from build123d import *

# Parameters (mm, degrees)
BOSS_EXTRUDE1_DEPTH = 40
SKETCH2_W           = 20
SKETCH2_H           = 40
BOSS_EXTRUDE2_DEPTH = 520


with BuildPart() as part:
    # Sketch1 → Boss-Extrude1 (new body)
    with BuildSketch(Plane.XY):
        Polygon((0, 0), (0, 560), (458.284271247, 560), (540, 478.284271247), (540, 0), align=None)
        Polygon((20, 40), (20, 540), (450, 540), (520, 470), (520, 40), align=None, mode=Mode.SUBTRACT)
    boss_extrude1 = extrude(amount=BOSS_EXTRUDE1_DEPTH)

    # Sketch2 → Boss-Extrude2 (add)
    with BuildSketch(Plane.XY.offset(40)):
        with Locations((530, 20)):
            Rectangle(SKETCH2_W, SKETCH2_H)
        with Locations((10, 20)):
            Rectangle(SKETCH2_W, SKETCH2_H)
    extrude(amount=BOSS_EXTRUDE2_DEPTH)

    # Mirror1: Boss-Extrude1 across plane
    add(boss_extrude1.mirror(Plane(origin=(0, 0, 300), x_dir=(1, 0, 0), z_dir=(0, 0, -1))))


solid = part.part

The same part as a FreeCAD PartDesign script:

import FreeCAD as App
import Part
import Sketcher

V = App.Vector
Q = App.Units.Quantity

doc = App.newDocument("Part")
body = doc.addObject("PartDesign::Body", "Body")

sketch1 = doc.addObject("Sketcher::SketchObject", "Sketch")
body.addObject(sketch1)
sketch1.AttachmentSupport = (doc.XY_Plane, [""])
sketch1.MapMode = "FlatFace"
sketch1.addGeometry([
    Part.LineSegment(V(0, 560, 0), V(0, 0, 0)),
    Part.LineSegment(V(0, 0, 0), V(540, 0, 0)),
    Part.LineSegment(V(540, 0, 0), V(540, 478.284271, 0)),
    Part.LineSegment(V(540, 478.284271, 0), V(458.284271, 560, 0)),
    Part.LineSegment(V(458.284271, 560, 0), V(0, 560, 0)),
    Part.LineSegment(V(20, 40, 0), V(20, 540, 0)),
    Part.LineSegment(V(20, 540, 0), V(450, 540, 0)),
    Part.LineSegment(V(450, 540, 0), V(520, 470, 0)),
    Part.LineSegment(V(520, 470, 0), V(520, 40, 0)),
    Part.LineSegment(V(520, 40, 0), V(20, 40, 0)),
], False)
sketch1.addConstraint([
    Sketcher.Constraint("Coincident", 0, 2, 1, 1),
    Sketcher.Constraint("Coincident", 1, 2, 2, 1),
    Sketcher.Constraint("Coincident", 2, 2, 3, 1),
    Sketcher.Constraint("Coincident", 3, 2, 4, 1),
    Sketcher.Constraint("Coincident", 4, 2, 0, 1),
    Sketcher.Constraint("Coincident", 5, 2, 6, 1),
    Sketcher.Constraint("Coincident", 6, 2, 7, 1),
    Sketcher.Constraint("Coincident", 7, 2, 8, 1),
    Sketcher.Constraint("Coincident", 8, 2, 9, 1),
    Sketcher.Constraint("Coincident", 9, 2, 5, 1),
    Sketcher.Constraint("Vertical", 0),
    Sketcher.Constraint("Horizontal", 1),
    Sketcher.Constraint("Vertical", 2),
    Sketcher.Constraint("Horizontal", 4),
    Sketcher.Constraint("Vertical", 5),
    Sketcher.Constraint("Horizontal", 6),
    Sketcher.Constraint("Vertical", 8),
    Sketcher.Constraint("Horizontal", 9),
    Sketcher.Constraint("Coincident", 0, 2, -1, 1),
    Sketcher.Constraint("Parallel", 3, 7),
    Sketcher.Constraint("Equal", 9, 5),
    Sketcher.Constraint("Equal", 6, 8),
    Sketcher.Constraint("DistanceX", 1, 1, 1, 2, Q("540 mm")),
    Sketcher.Constraint("DistanceX", 6, 1, 6, 2, Q("430 mm")),
    Sketcher.Constraint("DistanceX", 9, 2, 9, 1, Q("500 mm")),
    Sketcher.Constraint("DistanceY", 0, 2, 0, 1, Q("560 mm")),
    Sketcher.Constraint("DistanceX", -1, 1, 5, 2, Q("20 mm")),
    Sketcher.Constraint("DistanceY", -1, 1, 5, 2, Q("540 mm")),
    Sketcher.Constraint("DistanceX", 4, 2, 4, 1, Q("458.284271 mm")),
])
pad1 = doc.addObject("PartDesign::Pad", "Pad")
body.addObject(pad1)
pad1.Profile = sketch1
pad1.Length = 40

sketch2 = doc.addObject("Sketcher::SketchObject", "Sketch001")
body.addObject(sketch2)
sketch2.AttachmentSupport = (doc.XY_Plane, [""])
sketch2.MapMode = "FlatFace"
sketch2.AttachmentOffset = App.Placement(V(0, 0, 40), App.Rotation())
sketch2.addGeometry([
    Part.LineSegment(V(520, 40, 0), V(520, 0, 0)),
    Part.LineSegment(V(520, 0, 0), V(540, 0, 0)),
    Part.LineSegment(V(540, 0, 0), V(540, 40, 0)),
    Part.LineSegment(V(540, 40, 0), V(520, 40, 0)),
    Part.LineSegment(V(0, 40, 0), V(0, 0, 0)),
    Part.LineSegment(V(0, 0, 0), V(20, 0, 0)),
    Part.LineSegment(V(20, 0, 0), V(20, 40, 0)),
    Part.LineSegment(V(20, 40, 0), V(0, 40, 0)),
], False)
sketch2.addConstraint([
    Sketcher.Constraint("Coincident", 0, 2, 1, 1),
    Sketcher.Constraint("Coincident", 1, 2, 2, 1),
    Sketcher.Constraint("Coincident", 2, 2, 3, 1),
    Sketcher.Constraint("Coincident", 3, 2, 0, 1),
    Sketcher.Constraint("Coincident", 4, 2, 5, 1),
    Sketcher.Constraint("Coincident", 5, 2, 6, 1),
    Sketcher.Constraint("Coincident", 6, 2, 7, 1),
    Sketcher.Constraint("Coincident", 7, 2, 4, 1),
    Sketcher.Constraint("Vertical", 0),
    Sketcher.Constraint("Horizontal", 1),
    Sketcher.Constraint("Vertical", 2),
    Sketcher.Constraint("Horizontal", 3),
    Sketcher.Constraint("Vertical", 4),
    Sketcher.Constraint("Horizontal", 5),
    Sketcher.Constraint("Vertical", 6),
    Sketcher.Constraint("Horizontal", 7),
    Sketcher.Constraint("Coincident", 4, 2, -1, 1),
    Sketcher.Constraint("PointOnObject", 0, 2, -1),
    Sketcher.Constraint("Horizontal", 3, 2, 6, 2),
    Sketcher.Constraint("Equal", 3, 5),
    Sketcher.Constraint("DistanceX", 1, 1, 1, 2, Q("20 mm")),
    Sketcher.Constraint("DistanceY", 0, 2, 0, 1, Q("40 mm")),
    Sketcher.Constraint("DistanceX", -1, 1, 0, 2, Q("520 mm")),
])
pad2 = doc.addObject("PartDesign::Pad", "Pad001")
body.addObject(pad2)
pad2.Profile = sketch2
pad2.Length = 520
doc.recompute()

datumplane = doc.addObject("PartDesign::Plane", "DatumPlane")
body.addObject(datumplane)
datumplane.AttachmentSupport = (doc.XY_Plane, [""])
datumplane.MapMode = "FlatFace"
datumplane.AttachmentOffset = App.Placement(V(0, 0, 300), App.Rotation())
mirrored = doc.addObject("PartDesign::Mirrored", "Mirrored")
body.addObject(mirrored)
mirrored.Originals = [pad1]
mirrored.MirrorPlane = (datumplane, [""])
body.Tip = mirrored

doc.recompute()
